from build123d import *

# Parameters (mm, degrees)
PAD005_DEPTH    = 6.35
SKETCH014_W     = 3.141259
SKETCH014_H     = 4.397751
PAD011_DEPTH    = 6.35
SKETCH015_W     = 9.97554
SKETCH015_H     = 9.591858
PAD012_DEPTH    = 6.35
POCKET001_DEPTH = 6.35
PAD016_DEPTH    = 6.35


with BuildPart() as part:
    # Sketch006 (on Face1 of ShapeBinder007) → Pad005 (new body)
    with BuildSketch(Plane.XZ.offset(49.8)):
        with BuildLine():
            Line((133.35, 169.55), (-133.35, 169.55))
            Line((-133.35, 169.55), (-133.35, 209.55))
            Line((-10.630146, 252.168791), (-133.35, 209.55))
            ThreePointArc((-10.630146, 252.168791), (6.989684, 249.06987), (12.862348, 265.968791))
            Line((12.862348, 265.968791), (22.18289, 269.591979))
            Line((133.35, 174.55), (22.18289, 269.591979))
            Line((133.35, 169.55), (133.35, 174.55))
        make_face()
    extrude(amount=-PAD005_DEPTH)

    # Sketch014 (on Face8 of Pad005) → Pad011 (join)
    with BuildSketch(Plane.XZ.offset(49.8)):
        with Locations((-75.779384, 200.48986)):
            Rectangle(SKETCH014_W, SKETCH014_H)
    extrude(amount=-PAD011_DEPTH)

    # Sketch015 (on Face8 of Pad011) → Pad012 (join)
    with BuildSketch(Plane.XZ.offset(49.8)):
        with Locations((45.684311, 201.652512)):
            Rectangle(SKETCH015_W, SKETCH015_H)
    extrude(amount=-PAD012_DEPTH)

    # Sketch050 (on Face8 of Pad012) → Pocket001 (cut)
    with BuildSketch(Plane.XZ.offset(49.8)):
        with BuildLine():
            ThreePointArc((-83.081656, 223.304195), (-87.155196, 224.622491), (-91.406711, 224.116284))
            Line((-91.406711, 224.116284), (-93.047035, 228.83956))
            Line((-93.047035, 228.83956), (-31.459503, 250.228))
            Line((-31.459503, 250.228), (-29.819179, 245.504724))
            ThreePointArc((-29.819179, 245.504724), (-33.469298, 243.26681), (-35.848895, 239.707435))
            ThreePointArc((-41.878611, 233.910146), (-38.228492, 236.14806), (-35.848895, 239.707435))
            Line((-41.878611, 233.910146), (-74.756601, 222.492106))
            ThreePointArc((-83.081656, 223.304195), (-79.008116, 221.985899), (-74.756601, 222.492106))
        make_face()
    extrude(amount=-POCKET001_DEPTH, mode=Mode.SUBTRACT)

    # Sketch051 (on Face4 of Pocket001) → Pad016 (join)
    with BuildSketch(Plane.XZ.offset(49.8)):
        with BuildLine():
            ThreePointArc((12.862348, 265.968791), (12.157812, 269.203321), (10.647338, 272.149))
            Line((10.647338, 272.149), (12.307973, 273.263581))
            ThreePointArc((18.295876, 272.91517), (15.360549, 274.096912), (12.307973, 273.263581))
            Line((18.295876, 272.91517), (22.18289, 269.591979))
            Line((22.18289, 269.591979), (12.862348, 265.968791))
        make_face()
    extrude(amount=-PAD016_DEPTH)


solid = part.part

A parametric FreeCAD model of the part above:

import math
import FreeCAD as App
import Part
import Sketcher
from FreeCAD import Vector
Q = App.Units.Quantity

doc = App.newDocument("Part")
body = doc.addObject("PartDesign::Body", "Body")

sketch1 = body.newObject("Sketcher::SketchObject", "Sketch")
sketch1.AttachmentSupport = (doc.getObject("XZ_Plane"), [""])
sketch1.MapMode = "FlatFace"
sketch1.AttachmentOffset = App.Placement(Vector(0, 0, 49.8), App.Rotation())
sketch1.addGeometry([
    Part.LineSegment(Vector(-133, 170, 0), Vector(133, 170, 0)),
    Part.LineSegment(Vector(133, 170, 0), Vector(133, 175, 0)),
    Part.LineSegment(Vector(133, 175, 0), Vector(22, 270, 0)),
    Part.LineSegment(Vector(22, 270, 0), Vector(13, 266, 0)),
    Part.ArcOfCircle(Part.Circle(Vector(0, 261, 0), Vector(0, 0, 1), 14), math.radians(-140), math.radians(21)),
    Part.LineSegment(Vector(-11, 252, 0), Vector(-133, 210, 0)),
    Part.LineSegment(Vector(-133, 210, 0), Vector(-133, 170, 0)),
], False)
sketch1.addConstraint([
    Sketcher.Constraint("Coincident", 0, 2, 1, 1),
    Sketcher.Constraint("Coincident", 1, 2, 2, 1),
    Sketcher.Constraint("Coincident", 2, 2, 3, 1),
    Sketcher.Constraint("Coincident", 3, 2, 4, 2),
    Sketcher.Constraint("Coincident", 4, 1, 5, 1),
    Sketcher.Constraint("Coincident", 5, 2, 6, 1),
    Sketcher.Constraint("Coincident", 6, 2, 0, 1),
    Sketcher.Constraint("Horizontal", 0),
    Sketcher.Constraint("Vertical", 1),
    Sketcher.Constraint("Vertical", 6),
    Sketcher.Constraint("PointOnObject", 4, 3, -2),
    Sketcher.Constraint("Radius", 4, Q("13.8 mm")),
    Sketcher.Constraint("DistanceY", 1, 1, 1, 2, Q("5 mm")),
    Sketcher.Constraint("DistanceY", 6, 2, 6, 1, Q("40 mm")),
    Sketcher.Constraint("Distance", 3, Q("10 mm")),
    Sketcher.Constraint("DistanceX", 0, 1, 0, 2, Q("266.7 mm")),
    Sketcher.Constraint("DistanceY", 4, 3, 3, 2, Q("5 mm")),
    Sketcher.Constraint("DistanceY", 4, 1, 4, 3, Q("8.8 mm")),
    Sketcher.Constraint("DistanceX", -1, 1, 0, 2, Q("133.35 mm")),
    Sketcher.Constraint("DistanceY", -1, 1, 0, 2, Q("169.55 mm")),
    Sketcher.Constraint("Distance", 2, Q("146.25698 mm")),
    Sketcher.Constraint("DistanceY", -1, 1, 4, 3, Q("260.968791 mm")),
])
pad1 = body.newObject("PartDesign::Pad", "Pad")
pad1.Profile = sketch1
pad1.Length = 6.35
pad1.Reversed = True

sketch2 = body.newObject("Sketcher::SketchObject", "Sketch001")
sketch2.AttachmentSupport = (doc.getObject("XZ_Plane"), [""])
sketch2.MapMode = "FlatFace"
sketch2.AttachmentOffset = App.Placement(Vector(0, 0, 49.8), App.Rotation())
sketch2.addGeometry([
    Part.LineSegment(Vector(-77.4, 202.7, 0), Vector(-77.4, 198.3, 0)),
    Part.LineSegment(Vector(-77.4, 198.3, 0), Vector(-74.2, 198.3, 0)),
    Part.LineSegment(Vector(-74.2, 198.3, 0), Vector(-74.2, 202.7, 0)),
    Part.LineSegment(Vector(-74.2, 202.7, 0), Vector(-77.4, 202.7, 0)),
], False)
sketch2.addConstraint([
    Sketcher.Constraint("Coincident", 0, 2, 1, 1),
    Sketcher.Constraint("Coincident", 1, 2, 2, 1),
    Sketcher.Constraint("Coincident", 2, 2, 3, 1),
    Sketcher.Constraint("Coincident", 3, 2, 0, 1),
    Sketcher.Constraint("Vertical", 0),
    Sketcher.Constraint("Horizontal", 1),
    Sketcher.Constraint("Vertical", 2),
    Sketcher.Constraint("Horizontal", 3),
    Sketcher.Constraint("DistanceX", 1, 1, 1, 2, Q("3.141259 mm")),
    Sketcher.Constraint("DistanceY", 0, 2, 0, 1, Q("4.397751 mm")),
    Sketcher.Constraint("DistanceX", 0, 2, -1, 1, Q("77.350014 mm")),
    Sketcher.Constraint("DistanceY", -1, 1, 0, 2, Q("198.290985 mm")),
])
pad2 = body.newObject("PartDesign::Pad", "Pad001")
pad2.Profile = sketch2
pad2.Length = 6.35
pad2.Reversed = True

sketch3 = body.newObject("Sketcher::SketchObject", "Sketch002")
sketch3.AttachmentSupport = (doc.getObject("XZ_Plane"), [""])
sketch3.MapMode = "FlatFace"
sketch3.AttachmentOffset = App.Placement(Vector(0, 0, 49.8), App.Rotation())
sketch3.addGeometry([
    Part.LineSegment(Vector(41, 206, 0), Vector(41, 197, 0)),
    Part.LineSegment(Vector(41, 197, 0), Vector(51, 197, 0)),
    Part.LineSegment(Vector(51, 197, 0), Vector(51, 206, 0)),
    Part.LineSegment(Vector(51, 206, 0), Vector(41, 206, 0)),
], False)
sketch3.addConstraint([
    Sketcher.Constraint("Coincident", 0, 2, 1, 1),
    Sketcher.Constraint("Coincident", 1, 2, 2, 1),
    Sketcher.Constraint("Coincident", 2, 2, 3, 1),
    Sketcher.Constraint("Coincident", 3, 2, 0, 1),
    Sketcher.Constraint("Vertical", 0),
    Sketcher.Constraint("Horizontal", 1),
    Sketcher.Constraint("Vertical", 2),
    Sketcher.Constraint("Horizontal", 3),
    Sketcher.Constraint("DistanceX", 1, 1, 1, 2, Q("9.97554 mm")),
    Sketcher.Constraint("DistanceY", 0, 2, 0, 1, Q("9.591858 mm")),
    Sketcher.Constraint("DistanceX", -1, 1, 0, 2, Q("40.696541 mm")),
    Sketcher.Constraint("DistanceY", -1, 1, 2, 2, Q("206.448441 mm")),
])
pad3 = body.newObject("PartDesign::Pad", "Pad002")
pad3.Profile = sketch3
pad3.Length = 6.35
pad3.Reversed = True

sketch4 = body.newObject("Sketcher::SketchObject", "Sketch003")
sketch4.AttachmentSupport = (doc.getObject("XZ_Plane"), [""])
sketch4.MapMode = "FlatFace"
sketch4.AttachmentOffset = App.Placement(Vector(0, 0, 49.8), App.Rotation())
sketch4.addGeometry([
    Part.ArcOfCircle(Part.Circle(Vector(-88.1, 214.7, 0), Vector(0, 0, 1), 10), math.radians(60), math.radians(109)),
    Part.ArcOfCircle(Part.Circle(Vector(-78, 231.9, 0), Vector(0, 0, 1), 10), math.radians(-120), math.radians(-71)),
    Part.LineSegment(Vector(-74.8, 222.5, 0), Vector(-41.9, 233.9, 0)),
    Part.ArcOfCircle(Part.Circle(Vector(-45.2, 243.4, 0), Vector(0, 0, 1), 10), math.radians(-71), math.radians(-21)),
    Part.ArcOfCircle(Part.Circle(Vector(-26.5, 236.1, 0), Vector(0, 0, 1), 10), math.radians(109), math.radians(159)),
    Part.LineSegment(Vector(-29.8, 245.5, 0), Vector(-31.5, 250.2, 0)),
    Part.LineSegment(Vector(-31.5, 250.2, 0), Vector(-93, 228.8, 0)),
    Part.LineSegment(Vector(-93, 228.8, 0), Vector(-91.4, 224.1, 0)),
], False)
sketch4.addConstraint([
    Sketcher.Constraint("Tangent", 0, 1, 1, 1),
    Sketcher.Constraint("Tangent", 1, 2, 2, 1),
    Sketcher.Constraint("Tangent", 2, 2, 3, 1),
    Sketcher.Constraint("Tangent", 3, 2, 4, 2),
    Sketcher.Constraint("Coincident", 4, 1, 5, 1),
    Sketcher.Constraint("Coincident", 5, 2, 6, 1),
    Sketcher.Constraint("Coincident", 6, 2, 7, 1),
    Sketcher.Constraint("Coincident", 7, 2, 0, 2),
    Sketcher.Constraint("Equal", 0, 1),
    Sketcher.Constraint("Equal", 3, 4),
    Sketcher.Constraint("Perpendicular", 2, 5),
    Sketcher.Constraint("Perpendicular", 5, 6),
    Sketcher.Constraint("Perpendicular", 6, 7),
    Sketcher.Constraint("Equal", 5, 7),
    Sketcher.Constraint("Radius", 0, Q("10 mm")),
    Sketcher.Constraint("Radius", 3, Q("10.000002 mm")),
    Sketcher.Constraint("Distance", 5, Q("5 mm")),
    Sketcher.Constraint("DistanceY", -1, 1, 5, 2, Q("250.228 mm")),
    Sketcher.Constraint("DistanceY", -1, 1, 3, 3, Q("243.3567 mm")),
    Sketcher.Constraint("DistanceX", 1, 2, -1, 1, Q("74.756601 mm")),
    Sketcher.Constraint("DistanceY", 6, 2, 1, 3, Q("3.099098 mm")),
    Sketcher.Constraint("Distance", 2, Q("34.804222 mm")),
    Sketcher.Constraint("DistanceY", -1, 1, 0, 3, Q("214.669732 mm")),
    Sketcher.Constraint("DistanceX", 1, 3, -1, 1, Q("78.037249 mm")),
])
pocket1 = body.newObject("PartDesign::Pocket", "Pocket")
pocket1.Profile = sketch4
pocket1.Length = 6.35

sketch5 = body.newObject("Sketcher::SketchObject", "Sketch004")
sketch5.AttachmentSupport = (doc.getObject("XZ_Plane"), [""])
sketch5.MapMode = "FlatFace"
sketch5.AttachmentOffset = App.Placement(Vector(0, 0, 49.8), App.Rotation())
sketch5.addGeometry([
    Part.ArcOfCircle(Part.Circle(Vector(0.1, 264.9, 0), Vector(0, 0, 1), 12.8), math.radians(5), math.radians(35)),
    Part.LineSegment(Vector(12.9, 266, 0), Vector(22.2, 269.6, 0)),
    Part.LineSegment(Vector(22.2, 269.6, 0), Vector(18.3, 272.9, 0)),
    Part.ArcOfCircle(Part.Circle(Vector(15.1, 269.1, 0), Vector(0, 0, 1), 5), math.radians(49), math.radians(124)),
    Part.LineSegment(Vector(12.3, 273.3, 0), Vector(10.6, 272.1, 0)),
], False)
sketch5.addConstraint([
    Sketcher.Constraint("Coincident", 0, 1, 1, 1),
    Sketcher.Constraint("Coincident", 1, 2, 2, 1),
    Sketcher.Constraint("Tangent", 2, 2, 3, 1),
    Sketcher.Constraint("Tangent", 3, 2, 4, 1),
    Sketcher.Constraint("Coincident", 4, 2, 0, 2),
    Sketcher.Constraint("Radius", 0, Q("12.799999 mm")),
    Sketcher.Constraint("Distance", 1, Q("10 mm")),
    Sketcher.Constraint("Distance", 4, Q("2 mm")),
    Sketcher.Constraint("Radius", 3, Q("4.960492 mm")),
    Sketcher.Constraint("DistanceY", -1, 1, 4, 2, Q("272.149 mm")),
    Sketcher.Constraint("Distance", 2, Q("5.113949 mm")),
    Sketcher.Constraint("DistanceX", -1, 1, 0, 1, Q("12.862348 mm")),
    Sketcher.Constraint("DistanceY", -1, 1, 0, 1, Q("265.968791 mm")),
    Sketcher.Constraint("DistanceX", -1, 1, 1, 2, Q("22.18289 mm")),
    Sketcher.Constraint("DistanceY", -1, 1, 2, 2, Q("272.91517 mm")),
])
pad4 = body.newObject("PartDesign::Pad", "Pad003")
pad4.Profile = sketch5
pad4.Length = 6.35
pad4.Reversed = True

doc.recompute()
